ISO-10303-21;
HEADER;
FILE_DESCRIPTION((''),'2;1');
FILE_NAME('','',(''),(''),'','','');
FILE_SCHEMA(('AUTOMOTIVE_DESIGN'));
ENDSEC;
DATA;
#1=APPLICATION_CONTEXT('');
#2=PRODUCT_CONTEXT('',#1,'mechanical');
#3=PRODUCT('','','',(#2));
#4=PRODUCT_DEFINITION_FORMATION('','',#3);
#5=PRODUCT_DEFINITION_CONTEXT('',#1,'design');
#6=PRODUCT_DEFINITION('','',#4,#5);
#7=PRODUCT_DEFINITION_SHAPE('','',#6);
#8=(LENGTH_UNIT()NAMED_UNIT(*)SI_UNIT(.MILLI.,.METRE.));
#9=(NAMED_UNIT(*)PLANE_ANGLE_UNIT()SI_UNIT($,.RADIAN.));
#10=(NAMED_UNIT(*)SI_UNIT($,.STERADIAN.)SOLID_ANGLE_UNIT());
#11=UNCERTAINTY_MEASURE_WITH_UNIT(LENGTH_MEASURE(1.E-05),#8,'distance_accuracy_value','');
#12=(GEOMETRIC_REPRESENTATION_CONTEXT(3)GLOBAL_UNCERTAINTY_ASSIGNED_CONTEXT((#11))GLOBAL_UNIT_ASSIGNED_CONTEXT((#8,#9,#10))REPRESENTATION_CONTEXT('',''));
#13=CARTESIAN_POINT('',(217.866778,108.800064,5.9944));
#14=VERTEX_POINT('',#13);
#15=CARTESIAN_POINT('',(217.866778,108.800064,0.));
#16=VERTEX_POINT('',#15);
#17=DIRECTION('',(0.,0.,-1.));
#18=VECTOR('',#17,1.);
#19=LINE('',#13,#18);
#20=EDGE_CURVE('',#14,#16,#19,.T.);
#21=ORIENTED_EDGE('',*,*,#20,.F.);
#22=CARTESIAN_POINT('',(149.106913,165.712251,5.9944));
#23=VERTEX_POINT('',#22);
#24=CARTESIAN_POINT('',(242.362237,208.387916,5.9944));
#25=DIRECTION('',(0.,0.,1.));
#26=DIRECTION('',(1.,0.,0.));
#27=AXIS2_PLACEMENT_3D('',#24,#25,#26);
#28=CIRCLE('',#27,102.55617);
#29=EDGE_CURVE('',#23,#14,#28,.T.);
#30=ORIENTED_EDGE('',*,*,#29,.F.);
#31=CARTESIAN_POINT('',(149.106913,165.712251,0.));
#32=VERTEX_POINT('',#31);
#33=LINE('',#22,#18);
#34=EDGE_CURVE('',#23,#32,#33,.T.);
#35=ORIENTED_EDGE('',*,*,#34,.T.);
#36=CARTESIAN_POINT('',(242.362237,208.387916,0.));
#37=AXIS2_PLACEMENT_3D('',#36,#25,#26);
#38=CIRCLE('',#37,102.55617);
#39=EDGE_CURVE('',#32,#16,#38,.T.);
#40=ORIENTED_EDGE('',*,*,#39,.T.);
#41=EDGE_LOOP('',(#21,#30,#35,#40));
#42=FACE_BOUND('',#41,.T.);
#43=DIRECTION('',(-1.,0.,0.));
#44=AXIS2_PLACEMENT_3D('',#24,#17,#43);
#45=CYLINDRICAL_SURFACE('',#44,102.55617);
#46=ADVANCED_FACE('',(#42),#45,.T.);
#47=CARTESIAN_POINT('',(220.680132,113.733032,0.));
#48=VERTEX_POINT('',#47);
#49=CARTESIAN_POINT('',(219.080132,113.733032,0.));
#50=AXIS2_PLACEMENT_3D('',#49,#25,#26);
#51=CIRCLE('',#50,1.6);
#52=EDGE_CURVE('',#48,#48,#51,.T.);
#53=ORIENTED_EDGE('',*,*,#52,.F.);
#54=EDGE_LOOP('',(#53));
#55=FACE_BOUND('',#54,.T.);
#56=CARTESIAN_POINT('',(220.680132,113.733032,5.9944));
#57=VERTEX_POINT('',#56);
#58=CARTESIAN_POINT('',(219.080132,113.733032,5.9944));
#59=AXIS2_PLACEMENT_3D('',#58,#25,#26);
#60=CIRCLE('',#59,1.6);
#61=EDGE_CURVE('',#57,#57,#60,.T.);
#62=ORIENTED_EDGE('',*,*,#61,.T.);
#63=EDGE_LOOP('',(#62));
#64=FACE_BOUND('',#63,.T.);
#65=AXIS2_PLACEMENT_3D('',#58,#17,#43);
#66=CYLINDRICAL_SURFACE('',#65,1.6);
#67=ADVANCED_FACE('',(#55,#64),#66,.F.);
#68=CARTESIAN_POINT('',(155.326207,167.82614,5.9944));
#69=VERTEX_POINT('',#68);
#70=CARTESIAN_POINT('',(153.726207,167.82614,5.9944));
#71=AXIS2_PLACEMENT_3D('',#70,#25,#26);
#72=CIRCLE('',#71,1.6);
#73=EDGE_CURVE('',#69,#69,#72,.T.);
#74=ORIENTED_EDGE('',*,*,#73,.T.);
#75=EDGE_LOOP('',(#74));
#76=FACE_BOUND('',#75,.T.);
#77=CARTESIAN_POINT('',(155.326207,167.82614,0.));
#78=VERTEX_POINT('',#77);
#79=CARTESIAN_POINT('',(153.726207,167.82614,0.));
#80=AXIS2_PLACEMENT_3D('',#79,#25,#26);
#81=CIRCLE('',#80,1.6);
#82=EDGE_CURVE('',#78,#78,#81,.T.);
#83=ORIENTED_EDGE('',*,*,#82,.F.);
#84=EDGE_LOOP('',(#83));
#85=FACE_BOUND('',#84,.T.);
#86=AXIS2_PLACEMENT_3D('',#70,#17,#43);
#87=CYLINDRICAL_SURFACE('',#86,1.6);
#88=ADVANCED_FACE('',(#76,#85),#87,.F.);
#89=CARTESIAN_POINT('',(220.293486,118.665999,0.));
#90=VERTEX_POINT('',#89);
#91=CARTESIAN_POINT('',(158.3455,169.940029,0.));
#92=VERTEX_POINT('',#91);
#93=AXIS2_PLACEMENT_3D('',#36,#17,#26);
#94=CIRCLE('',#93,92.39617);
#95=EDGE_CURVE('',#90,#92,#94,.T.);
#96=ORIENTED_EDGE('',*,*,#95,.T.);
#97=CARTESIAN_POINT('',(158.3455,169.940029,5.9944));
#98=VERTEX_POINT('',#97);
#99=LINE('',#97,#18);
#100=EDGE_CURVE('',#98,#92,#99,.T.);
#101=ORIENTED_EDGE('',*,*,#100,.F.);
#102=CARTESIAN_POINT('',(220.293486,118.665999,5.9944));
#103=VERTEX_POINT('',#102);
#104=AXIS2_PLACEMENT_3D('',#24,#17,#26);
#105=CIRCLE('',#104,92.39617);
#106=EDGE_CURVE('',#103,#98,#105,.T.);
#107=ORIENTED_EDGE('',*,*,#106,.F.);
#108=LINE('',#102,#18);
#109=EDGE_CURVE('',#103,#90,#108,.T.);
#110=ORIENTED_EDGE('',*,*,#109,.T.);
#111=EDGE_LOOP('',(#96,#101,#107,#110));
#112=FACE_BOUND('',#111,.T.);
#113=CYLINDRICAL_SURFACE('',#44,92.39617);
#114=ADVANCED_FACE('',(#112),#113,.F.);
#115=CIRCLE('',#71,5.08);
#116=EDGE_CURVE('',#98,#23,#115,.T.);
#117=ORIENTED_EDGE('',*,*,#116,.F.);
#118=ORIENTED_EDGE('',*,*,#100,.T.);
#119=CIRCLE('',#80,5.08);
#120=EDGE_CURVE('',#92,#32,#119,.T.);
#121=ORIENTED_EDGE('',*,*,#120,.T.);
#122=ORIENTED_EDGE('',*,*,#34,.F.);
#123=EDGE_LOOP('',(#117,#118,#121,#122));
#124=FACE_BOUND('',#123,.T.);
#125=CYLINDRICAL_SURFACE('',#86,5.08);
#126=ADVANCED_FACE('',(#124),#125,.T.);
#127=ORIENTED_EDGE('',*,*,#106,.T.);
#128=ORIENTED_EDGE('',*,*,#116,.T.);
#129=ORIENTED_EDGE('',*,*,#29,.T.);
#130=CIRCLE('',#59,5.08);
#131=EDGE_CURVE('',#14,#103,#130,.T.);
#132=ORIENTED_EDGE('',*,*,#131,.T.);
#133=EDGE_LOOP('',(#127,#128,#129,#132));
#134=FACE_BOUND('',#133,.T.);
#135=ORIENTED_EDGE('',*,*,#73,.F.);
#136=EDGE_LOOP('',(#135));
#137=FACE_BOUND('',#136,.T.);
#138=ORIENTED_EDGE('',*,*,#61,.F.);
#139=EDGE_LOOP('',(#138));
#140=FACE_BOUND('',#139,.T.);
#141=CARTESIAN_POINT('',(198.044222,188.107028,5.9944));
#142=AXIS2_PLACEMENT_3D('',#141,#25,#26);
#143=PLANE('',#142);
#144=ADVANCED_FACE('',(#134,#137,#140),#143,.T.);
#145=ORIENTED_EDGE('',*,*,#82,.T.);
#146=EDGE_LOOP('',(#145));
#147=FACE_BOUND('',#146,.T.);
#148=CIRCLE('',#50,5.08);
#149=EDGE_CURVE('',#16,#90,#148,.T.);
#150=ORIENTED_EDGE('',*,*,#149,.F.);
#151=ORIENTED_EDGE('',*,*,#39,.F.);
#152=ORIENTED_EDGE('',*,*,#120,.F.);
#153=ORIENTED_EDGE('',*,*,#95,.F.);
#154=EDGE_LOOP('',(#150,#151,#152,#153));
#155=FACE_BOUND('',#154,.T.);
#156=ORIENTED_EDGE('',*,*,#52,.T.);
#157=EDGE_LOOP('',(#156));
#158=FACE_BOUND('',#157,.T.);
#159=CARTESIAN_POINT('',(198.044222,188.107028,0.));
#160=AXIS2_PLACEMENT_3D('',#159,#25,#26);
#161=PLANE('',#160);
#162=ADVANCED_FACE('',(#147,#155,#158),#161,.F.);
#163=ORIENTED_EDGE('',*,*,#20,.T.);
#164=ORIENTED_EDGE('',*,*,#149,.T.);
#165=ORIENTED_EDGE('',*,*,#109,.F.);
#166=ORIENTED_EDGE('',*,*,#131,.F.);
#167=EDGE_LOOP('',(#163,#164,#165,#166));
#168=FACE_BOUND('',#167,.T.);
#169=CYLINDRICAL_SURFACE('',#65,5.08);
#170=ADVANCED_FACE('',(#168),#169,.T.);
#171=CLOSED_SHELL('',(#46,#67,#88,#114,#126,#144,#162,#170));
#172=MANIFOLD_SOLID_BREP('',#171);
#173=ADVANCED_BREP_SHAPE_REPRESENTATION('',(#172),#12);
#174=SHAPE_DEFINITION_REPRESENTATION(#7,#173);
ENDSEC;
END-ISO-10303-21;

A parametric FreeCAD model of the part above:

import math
import FreeCAD as App
import Part
import Sketcher
from FreeCAD import Vector
Q = App.Units.Quantity

doc = App.newDocument("Part")
body = doc.addObject("PartDesign::Body", "Body")

sketch1 = doc.addObject("Sketcher::SketchObject", "Sketch")
body.addObject(sketch1)
sketch1.AttachmentSupport = (doc.XY_Plane, [""])
sketch1.MapMode = "FlatFace"
sketch1.addGeometry(Part.ArcOfCircle(Part.Circle(Vector(242.362237, 208.387916, 0), Vector(0, 0, 1), 102.55617), math.radians(-155.410137), math.radians(-103.818629)), False)
sketch1.addGeometry(Part.ArcOfCircle(Part.Circle(Vector(219.080132, 113.733032, 0), Vector(0, 0, 1), 5.08), math.radians(-103.818629), math.radians(76.181371)), False)
sketch1.addGeometry(Part.ArcOfCircle(Part.Circle(Vector(242.362237, 208.387916, 0), Vector(0, 0, 1), 92.39617), math.radians(-155.410137), math.radians(-103.818629)), False)
sketch1.addGeometry(Part.ArcOfCircle(Part.Circle(Vector(153.726206, 167.82614, 0), Vector(0, 0, 1), 5.08), math.radians(24.589863), math.radians(204.589863)), False)
sketch1.addGeometry(Part.Circle(Vector(219.080132, 113.733032, 0), Vector(0, 0, 1), 1.6), False)
sketch1.addGeometry(Part.Circle(Vector(153.726206, 167.82614, 0), Vector(0, 0, 1), 1.6), False)
sketch1.addConstraint(Sketcher.Constraint("Coincident", 0, 2, 1, 1))
sketch1.addConstraint(Sketcher.Constraint("Coincident", 1, 2, 2, 2))
sketch1.addConstraint(Sketcher.Constraint("Coincident", 2, 1, 3, 1))
sketch1.addConstraint(Sketcher.Constraint("Coincident", 3, 2, 0, 1))
sketch1.addConstraint(Sketcher.Constraint("Coincident", 2, 3, 0, 3))
sketch1.addConstraint(Sketcher.Constraint("Coincident", 4, 3, 1, 3))
sketch1.addConstraint(Sketcher.Constraint("Coincident", 5, 3, 3, 3))
sketch1.addConstraint(Sketcher.Constraint("Radius", 1, Q("0.2 in")))
sketch1.addConstraint(Sketcher.Constraint("Diameter", 4, 3.2))
sketch1.addConstraint(Sketcher.Constraint("Diameter", 5, 3.2))
sketch1.addConstraint(Sketcher.Constraint("Radius", 0, 102.55617))
sketch1.addConstraint(Sketcher.Constraint("DistanceY", -1, 1, 1, 2, 118.665999))
sketch1.addConstraint(Sketcher.Constraint("DistanceX", -1, 1, 2, 1, 158.3455))
sketch1.addConstraint(Sketcher.Constraint("DistanceX", -1, 1, 1, 3, 219.080132))
sketch1.addConstraint(Sketcher.Constraint("DistanceY", -1, 1, 1, 3, 113.733032))
sketch1.addConstraint(Sketcher.Constraint("DistanceY", -1, 1, 3, 3, 167.82614))
sketch1.addConstraint(Sketcher.Constraint("DistanceX", -1, 1, 0, 2, 217.866778))
sketch1.addConstraint(Sketcher.Constraint("DistanceY", -1, 1, 2, 1, 169.940029))
sketch1.addConstraint(Sketcher.Constraint("DistanceY", -1, 1, 3, 2, 165.712251))
pad1 = doc.addObject("PartDesign::Pad", "Pad")
body.addObject(pad1)
pad1.Profile = sketch1
pad1.Length = Q("0.236 in")

doc.recompute()
